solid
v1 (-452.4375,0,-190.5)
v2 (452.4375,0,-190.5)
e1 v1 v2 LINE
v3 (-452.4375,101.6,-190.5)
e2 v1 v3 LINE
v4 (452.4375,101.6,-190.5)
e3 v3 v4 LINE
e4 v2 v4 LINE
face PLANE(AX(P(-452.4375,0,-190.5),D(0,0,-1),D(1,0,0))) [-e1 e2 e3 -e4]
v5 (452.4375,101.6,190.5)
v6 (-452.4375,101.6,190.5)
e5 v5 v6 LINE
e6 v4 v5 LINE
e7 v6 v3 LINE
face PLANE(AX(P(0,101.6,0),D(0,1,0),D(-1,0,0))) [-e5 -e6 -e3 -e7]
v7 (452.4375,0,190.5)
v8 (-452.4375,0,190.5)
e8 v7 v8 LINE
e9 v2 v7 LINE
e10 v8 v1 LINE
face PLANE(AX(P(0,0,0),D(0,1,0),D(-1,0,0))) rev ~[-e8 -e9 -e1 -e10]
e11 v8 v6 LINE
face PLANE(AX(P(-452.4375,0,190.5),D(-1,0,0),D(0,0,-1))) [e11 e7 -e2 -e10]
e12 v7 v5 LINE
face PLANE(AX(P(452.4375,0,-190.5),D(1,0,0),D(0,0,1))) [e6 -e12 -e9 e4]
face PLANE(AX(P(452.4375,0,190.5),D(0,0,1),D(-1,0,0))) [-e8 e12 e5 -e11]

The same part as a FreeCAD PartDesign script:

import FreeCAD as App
import Part
import Sketcher
Q = App.Units.Quantity


def add_polygon(sketch, points):
    """Adds a closed chain of lines whose ends are joined by coincident constraints."""
    first, n = sketch.GeometryCount, len(points)
    for a, b in zip(points, points[1:] + points[:1]):
        sketch.addGeometry(Part.LineSegment(App.Vector(*a, 0), App.Vector(*b, 0)), False)
    for i in range(n):
        sketch.addConstraint(Sketcher.Constraint("Coincident", first + i, 2, first + (i + 1) % n, 1))

doc = App.newDocument("Part")
body = doc.addObject("PartDesign::Body", "Body")

sketch1 = body.newObject("Sketcher::SketchObject", "Sketch")
sketch1.AttachmentSupport = (doc.getObject("XZ_Plane"), [""])
sketch1.MapMode = "FlatFace"
add_polygon(sketch1, [(452, -190), (-452, -190), (-452, 190), (452, 190)])
sketch1.addConstraint(Sketcher.Constraint("Horizontal", 0))
sketch1.addConstraint(Sketcher.Constraint("Vertical", 1))
sketch1.addConstraint(Sketcher.Constraint("Horizontal", 2))
sketch1.addConstraint(Sketcher.Constraint("Vertical", 3))
sketch1.addConstraint(Sketcher.Constraint("Symmetric", 0, 2, 2, 2, -1, 1))
sketch1.addConstraint(Sketcher.Constraint("DistanceY", 1, 1, 1, 2, Q("15 in")))
sketch1.addConstraint(Sketcher.Constraint("DistanceX", 0, 2, 0, 1, Q("35.625 in")))
pad1 = body.newObject("PartDesign::Pad", "Pad")
pad1.Profile = sketch1
pad1.Length = Q("4 in")
pad1.Reversed = True

doc.recompute()
